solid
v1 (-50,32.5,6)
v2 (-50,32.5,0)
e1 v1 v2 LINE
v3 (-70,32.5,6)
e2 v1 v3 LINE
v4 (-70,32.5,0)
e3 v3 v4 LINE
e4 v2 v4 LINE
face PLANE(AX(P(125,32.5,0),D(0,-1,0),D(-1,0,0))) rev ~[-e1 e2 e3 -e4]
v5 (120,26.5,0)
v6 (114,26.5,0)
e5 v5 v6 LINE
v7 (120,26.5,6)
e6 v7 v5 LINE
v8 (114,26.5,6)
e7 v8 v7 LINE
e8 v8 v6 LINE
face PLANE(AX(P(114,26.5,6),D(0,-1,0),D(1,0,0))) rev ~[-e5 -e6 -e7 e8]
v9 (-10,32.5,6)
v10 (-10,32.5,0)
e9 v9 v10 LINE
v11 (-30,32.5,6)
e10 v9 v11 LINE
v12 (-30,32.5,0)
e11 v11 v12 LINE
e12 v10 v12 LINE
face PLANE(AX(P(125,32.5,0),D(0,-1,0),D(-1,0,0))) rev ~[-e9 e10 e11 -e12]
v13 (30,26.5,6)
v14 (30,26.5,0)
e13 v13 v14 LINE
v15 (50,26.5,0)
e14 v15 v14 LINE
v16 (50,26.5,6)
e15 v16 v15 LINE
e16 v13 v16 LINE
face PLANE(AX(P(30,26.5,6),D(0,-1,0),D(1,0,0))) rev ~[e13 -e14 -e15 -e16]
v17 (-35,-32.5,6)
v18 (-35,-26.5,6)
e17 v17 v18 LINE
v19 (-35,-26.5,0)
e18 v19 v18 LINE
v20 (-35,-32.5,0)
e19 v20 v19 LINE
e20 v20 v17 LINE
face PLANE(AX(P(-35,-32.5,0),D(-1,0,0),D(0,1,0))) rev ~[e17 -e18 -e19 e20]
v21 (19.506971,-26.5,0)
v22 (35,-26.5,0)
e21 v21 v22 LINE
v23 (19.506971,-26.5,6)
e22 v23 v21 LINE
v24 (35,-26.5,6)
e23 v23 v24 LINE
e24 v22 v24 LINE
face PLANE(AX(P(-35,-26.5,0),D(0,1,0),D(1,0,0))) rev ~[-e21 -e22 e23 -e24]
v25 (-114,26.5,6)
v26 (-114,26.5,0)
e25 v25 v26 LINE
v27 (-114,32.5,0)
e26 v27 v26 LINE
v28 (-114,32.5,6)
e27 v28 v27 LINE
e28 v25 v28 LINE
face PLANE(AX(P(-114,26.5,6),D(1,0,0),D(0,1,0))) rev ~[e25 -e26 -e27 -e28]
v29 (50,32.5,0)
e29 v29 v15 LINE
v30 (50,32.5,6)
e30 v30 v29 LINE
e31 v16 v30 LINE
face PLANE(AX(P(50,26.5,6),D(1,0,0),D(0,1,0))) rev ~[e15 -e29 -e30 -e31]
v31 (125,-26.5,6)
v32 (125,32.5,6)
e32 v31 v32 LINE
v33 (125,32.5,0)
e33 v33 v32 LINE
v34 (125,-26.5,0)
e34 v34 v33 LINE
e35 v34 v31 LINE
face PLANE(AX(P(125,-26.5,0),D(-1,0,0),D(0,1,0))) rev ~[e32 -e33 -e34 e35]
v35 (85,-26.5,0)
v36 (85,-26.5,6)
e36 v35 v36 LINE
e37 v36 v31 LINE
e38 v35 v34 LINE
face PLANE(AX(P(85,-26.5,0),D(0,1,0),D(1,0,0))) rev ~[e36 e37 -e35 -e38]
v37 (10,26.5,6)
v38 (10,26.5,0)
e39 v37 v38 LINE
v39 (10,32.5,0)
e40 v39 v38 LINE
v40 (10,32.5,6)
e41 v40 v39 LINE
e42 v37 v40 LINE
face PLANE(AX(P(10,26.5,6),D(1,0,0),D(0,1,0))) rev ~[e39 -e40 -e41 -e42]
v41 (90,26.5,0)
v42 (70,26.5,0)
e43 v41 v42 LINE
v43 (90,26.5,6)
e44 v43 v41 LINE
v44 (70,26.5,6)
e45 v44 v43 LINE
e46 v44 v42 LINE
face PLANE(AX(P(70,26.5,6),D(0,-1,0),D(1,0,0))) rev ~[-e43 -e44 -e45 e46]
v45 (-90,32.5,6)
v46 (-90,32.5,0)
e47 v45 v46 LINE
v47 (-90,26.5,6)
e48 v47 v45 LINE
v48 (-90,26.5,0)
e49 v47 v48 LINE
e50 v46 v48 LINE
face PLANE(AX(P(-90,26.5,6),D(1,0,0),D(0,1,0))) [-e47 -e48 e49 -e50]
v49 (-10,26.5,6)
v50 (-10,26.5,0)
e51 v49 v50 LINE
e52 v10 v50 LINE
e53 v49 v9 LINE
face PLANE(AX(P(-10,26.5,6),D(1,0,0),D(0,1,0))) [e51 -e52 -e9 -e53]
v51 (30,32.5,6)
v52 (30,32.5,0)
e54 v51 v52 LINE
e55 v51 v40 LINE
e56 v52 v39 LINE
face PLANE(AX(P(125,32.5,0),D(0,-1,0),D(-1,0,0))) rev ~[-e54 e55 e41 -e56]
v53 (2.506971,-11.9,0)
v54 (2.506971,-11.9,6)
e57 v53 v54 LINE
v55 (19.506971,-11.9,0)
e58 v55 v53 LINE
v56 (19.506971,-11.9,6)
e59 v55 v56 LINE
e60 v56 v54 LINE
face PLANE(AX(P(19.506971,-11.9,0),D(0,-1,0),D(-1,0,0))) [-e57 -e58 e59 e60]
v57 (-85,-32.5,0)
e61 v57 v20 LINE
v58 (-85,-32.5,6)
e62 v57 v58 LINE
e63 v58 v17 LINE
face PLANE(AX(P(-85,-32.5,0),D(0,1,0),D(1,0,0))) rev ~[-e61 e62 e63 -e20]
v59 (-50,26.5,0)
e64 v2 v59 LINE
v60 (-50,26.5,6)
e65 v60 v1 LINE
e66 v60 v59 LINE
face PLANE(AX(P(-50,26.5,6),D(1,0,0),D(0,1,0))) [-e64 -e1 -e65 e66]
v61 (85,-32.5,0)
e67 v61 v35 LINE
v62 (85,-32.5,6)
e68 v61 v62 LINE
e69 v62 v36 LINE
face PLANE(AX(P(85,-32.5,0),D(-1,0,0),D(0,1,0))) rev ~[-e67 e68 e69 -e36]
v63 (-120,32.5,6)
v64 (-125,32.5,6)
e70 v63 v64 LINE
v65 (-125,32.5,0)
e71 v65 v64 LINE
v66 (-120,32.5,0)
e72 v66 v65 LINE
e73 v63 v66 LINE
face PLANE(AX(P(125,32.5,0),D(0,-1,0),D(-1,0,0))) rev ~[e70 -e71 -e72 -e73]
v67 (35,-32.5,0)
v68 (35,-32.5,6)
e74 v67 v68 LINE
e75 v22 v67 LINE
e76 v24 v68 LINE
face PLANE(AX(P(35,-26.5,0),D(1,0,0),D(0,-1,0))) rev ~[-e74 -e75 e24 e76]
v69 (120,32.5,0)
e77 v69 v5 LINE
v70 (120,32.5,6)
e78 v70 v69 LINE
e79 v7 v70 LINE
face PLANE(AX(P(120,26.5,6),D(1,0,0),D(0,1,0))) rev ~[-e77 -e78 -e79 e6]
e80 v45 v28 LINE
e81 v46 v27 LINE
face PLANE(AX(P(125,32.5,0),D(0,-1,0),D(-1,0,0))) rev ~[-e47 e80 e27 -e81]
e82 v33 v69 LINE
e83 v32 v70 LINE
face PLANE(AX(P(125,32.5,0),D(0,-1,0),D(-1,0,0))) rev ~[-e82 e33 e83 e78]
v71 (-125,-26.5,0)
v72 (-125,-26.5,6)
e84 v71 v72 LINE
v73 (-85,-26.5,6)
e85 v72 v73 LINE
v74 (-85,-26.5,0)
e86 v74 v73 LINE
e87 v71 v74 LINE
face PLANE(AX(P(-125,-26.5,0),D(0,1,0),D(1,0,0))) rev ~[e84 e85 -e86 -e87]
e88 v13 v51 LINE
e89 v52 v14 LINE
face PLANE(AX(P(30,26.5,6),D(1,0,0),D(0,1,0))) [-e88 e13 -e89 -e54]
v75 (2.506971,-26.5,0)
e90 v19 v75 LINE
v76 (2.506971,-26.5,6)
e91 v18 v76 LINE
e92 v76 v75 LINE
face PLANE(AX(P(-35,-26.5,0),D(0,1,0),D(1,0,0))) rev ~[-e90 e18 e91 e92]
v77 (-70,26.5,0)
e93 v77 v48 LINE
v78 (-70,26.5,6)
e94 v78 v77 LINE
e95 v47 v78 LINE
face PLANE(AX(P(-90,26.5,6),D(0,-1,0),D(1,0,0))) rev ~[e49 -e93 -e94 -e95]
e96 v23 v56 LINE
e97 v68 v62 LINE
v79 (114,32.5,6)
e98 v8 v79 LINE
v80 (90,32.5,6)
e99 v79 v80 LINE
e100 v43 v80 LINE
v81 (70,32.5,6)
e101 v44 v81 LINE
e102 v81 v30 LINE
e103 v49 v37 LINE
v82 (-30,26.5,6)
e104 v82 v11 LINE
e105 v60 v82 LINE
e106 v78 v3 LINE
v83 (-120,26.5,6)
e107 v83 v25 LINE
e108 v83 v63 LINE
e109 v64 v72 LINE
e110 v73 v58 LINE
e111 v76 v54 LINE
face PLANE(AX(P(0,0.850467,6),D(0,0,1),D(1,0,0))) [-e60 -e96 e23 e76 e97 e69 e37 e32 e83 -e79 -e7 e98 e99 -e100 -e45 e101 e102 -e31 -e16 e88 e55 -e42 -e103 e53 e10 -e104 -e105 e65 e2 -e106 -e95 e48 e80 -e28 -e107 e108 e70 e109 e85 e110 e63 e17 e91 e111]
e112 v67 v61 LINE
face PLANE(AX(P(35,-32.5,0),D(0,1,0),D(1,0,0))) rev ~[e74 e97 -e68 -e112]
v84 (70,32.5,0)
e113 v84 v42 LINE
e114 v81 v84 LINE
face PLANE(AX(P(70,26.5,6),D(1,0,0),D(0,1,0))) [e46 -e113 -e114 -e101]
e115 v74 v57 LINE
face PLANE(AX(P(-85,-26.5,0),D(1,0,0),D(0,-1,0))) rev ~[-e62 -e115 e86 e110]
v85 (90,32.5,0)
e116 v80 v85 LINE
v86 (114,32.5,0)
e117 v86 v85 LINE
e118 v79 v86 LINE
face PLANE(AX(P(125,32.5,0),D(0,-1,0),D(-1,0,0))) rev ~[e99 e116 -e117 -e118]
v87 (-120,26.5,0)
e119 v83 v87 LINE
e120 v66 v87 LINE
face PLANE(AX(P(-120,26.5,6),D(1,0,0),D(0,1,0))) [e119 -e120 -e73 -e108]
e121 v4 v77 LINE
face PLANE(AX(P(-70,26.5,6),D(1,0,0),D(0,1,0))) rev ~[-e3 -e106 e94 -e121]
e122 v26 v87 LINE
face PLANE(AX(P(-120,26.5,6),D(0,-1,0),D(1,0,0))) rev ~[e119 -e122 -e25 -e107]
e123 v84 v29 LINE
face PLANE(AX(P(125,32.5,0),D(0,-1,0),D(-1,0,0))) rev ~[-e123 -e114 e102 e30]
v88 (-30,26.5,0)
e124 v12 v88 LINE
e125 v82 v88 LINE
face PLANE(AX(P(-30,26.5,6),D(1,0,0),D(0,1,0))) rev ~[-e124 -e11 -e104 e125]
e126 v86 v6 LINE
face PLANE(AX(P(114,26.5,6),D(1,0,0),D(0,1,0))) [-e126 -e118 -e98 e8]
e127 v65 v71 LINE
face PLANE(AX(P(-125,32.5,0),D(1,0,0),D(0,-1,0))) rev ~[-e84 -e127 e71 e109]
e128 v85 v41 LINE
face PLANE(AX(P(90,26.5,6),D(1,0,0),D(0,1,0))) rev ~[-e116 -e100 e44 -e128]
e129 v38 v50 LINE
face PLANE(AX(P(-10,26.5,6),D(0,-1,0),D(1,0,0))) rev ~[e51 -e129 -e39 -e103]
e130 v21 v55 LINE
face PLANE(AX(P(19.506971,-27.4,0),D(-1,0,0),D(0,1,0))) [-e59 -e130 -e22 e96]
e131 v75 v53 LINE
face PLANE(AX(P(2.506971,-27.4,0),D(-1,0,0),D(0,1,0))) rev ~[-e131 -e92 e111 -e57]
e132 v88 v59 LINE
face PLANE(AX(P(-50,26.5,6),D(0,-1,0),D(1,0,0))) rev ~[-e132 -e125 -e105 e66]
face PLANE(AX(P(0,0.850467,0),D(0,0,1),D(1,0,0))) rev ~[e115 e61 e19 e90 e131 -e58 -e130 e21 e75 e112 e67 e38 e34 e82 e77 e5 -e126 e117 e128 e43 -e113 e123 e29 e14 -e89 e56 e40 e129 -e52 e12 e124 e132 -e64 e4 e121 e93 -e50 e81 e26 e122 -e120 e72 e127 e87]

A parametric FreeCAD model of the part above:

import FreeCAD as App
import Part
import Sketcher
Q = App.Units.Quantity

doc = App.newDocument("Part")
body = doc.addObject("PartDesign::Body", "Body")

sketch1 = body.newObject("Sketcher::SketchObject", "Sketch")
sketch1.AttachmentSupport = (doc.getObject("XY_Plane"), [""])
sketch1.MapMode = "FlatFace"
sketch1.addGeometry([
    Part.LineSegment(App.Vector(-85, -26, 0), App.Vector(-85, -32, 0)),
    Part.LineSegment(App.Vector(-85, -32, 0), App.Vector(-35, -32, 0)),
    Part.LineSegment(App.Vector(-35, -32, 0), App.Vector(-35, -26, 0)),
    Part.LineSegment(App.Vector(-35, -26, 0), App.Vector(35, -26, 0)),
    Part.LineSegment(App.Vector(35, -26, 0), App.Vector(35, -32, 0)),
    Part.LineSegment(App.Vector(35, -32, 0), App.Vector(85, -32, 0)),
    Part.LineSegment(App.Vector(85, -32, 0), App.Vector(85, -26, 0)),
    Part.LineSegment(App.Vector(85, -26, 0), App.Vector(125, -26, 0)),
    Part.LineSegment(App.Vector(125, -26, 0), App.Vector(125, 32, 0)),
    Part.LineSegment(App.Vector(125, 32, 0), App.Vector(-125, 32, 0)),
    Part.LineSegment(App.Vector(-125, 32, 0), App.Vector(-125, -26, 0)),
    Part.LineSegment(App.Vector(-125, -26, 0), App.Vector(-85, -26, 0)),
], False)
sketch1.addConstraint([
    Sketcher.Constraint("Coincident", 0, 2, 1, 1),
    Sketcher.Constraint("Coincident", 1, 2, 2, 1),
    Sketcher.Constraint("Coincident", 2, 2, 3, 1),
    Sketcher.Constraint("Coincident", 3, 2, 4, 1),
    Sketcher.Constraint("Coincident", 4, 2, 5, 1),
    Sketcher.Constraint("Coincident", 5, 2, 6, 1),
    Sketcher.Constraint("Coincident", 6, 2, 7, 1),
    Sketcher.Constraint("Coincident", 7, 2, 8, 1),
    Sketcher.Constraint("Coincident", 8, 2, 9, 1),
    Sketcher.Constraint("Coincident", 9, 2, 10, 1),
    Sketcher.Constraint("Coincident", 10, 2, 11, 1),
    Sketcher.Constraint("Coincident", 11, 2, 0, 1),
    Sketcher.Constraint("Vertical", 0),
    Sketcher.Constraint("Horizontal", 1),
    Sketcher.Constraint("Vertical", 2),
    Sketcher.Constraint("Horizontal", 3),
    Sketcher.Constraint("Vertical", 4),
    Sketcher.Constraint("Horizontal", 5),
    Sketcher.Constraint("Vertical", 6),
    Sketcher.Constraint("Horizontal", 7),
    Sketcher.Constraint("Vertical", 8),
    Sketcher.Constraint("Horizontal", 9),
    Sketcher.Constraint("Vertical", 10),
    Sketcher.Constraint("Horizontal", 11),
    Sketcher.Constraint("Symmetric", 1, 2, 4, 2, -2),
    Sketcher.Constraint("Symmetric", 7, 2, 10, 2, -2),
    Sketcher.Constraint("Horizontal", 3, 2, 6, 2),
    Sketcher.Constraint("Equal", 1, 5),
    Sketcher.Constraint("DistanceX", 1, 1, 1, 2, Q("50 mm")),
    Sketcher.Constraint("DistanceX", 3, 1, 3, 2, Q("70 mm")),
    Sketcher.Constraint("DistanceX", 7, 1, 7, 2, Q("40 mm")),
    Sketcher.Constraint("DistanceY", 0, 2, 0, 1, Q("6 mm")),
    Sketcher.Constraint("DistanceY", 8, 1, 8, 2, Q("59 mm")),
    Sketcher.Constraint("DistanceY", 0, 2, -1, 1, Q("32.5 mm")),
])
pad1 = body.newObject("PartDesign::Pad", "Pad")
pad1.Profile = sketch1
pad1.Length = 6

sketch2 = body.newObject("Sketcher::SketchObject", "Sketch001")
sketch2.AttachmentSupport = (doc.getObject("XY_Plane"), [""])
sketch2.MapMode = "FlatFace"
sketch2.AttachmentOffset = App.Placement(App.Vector(0, 0, 6), App.Rotation())
sketch2.addGeometry([
    Part.LineSegment(App.Vector(-90, 32, 0), App.Vector(-90, 26, 0)),
    Part.LineSegment(App.Vector(-90, 26, 0), App.Vector(-70, 26, 0)),
    Part.LineSegment(App.Vector(-70, 26, 0), App.Vector(-70, 32, 0)),
    Part.LineSegment(App.Vector(-70, 32, 0), App.Vector(-90, 32, 0)),
], False)
sketch2.addConstraint([
    Sketcher.Constraint("Coincident", 0, 2, 1, 1),
    Sketcher.Constraint("Coincident", 1, 2, 2, 1),
    Sketcher.Constraint("Coincident", 2, 2, 3, 1),
    Sketcher.Constraint("Coincident", 3, 2, 0, 1),
    Sketcher.Constraint("Vertical", 0),
    Sketcher.Constraint("Horizontal", 1),
    Sketcher.Constraint("Vertical", 2),
    Sketcher.Constraint("Horizontal", 3),
    Sketcher.Constraint("DistanceX", 1, 1, 1, 2, Q("20 mm")),
    Sketcher.Constraint("DistanceY", 0, 2, 0, 1, Q("6 mm")),
    Sketcher.Constraint("DistanceX", 0, 2, -1, 1, Q("90 mm")),
    Sketcher.Constraint("DistanceY", -1, 1, 0, 2, Q("26.5 mm")),
])
pocket1 = body.newObject("PartDesign::Pocket", "Pocket")
pocket1.Profile = sketch2
pocket1.Type = "UpToFirst"

sketch3 = body.newObject("Sketcher::SketchObject", "Sketch002")
sketch3.AttachmentSupport = (doc.getObject("XY_Plane"), [""])
sketch3.MapMode = "FlatFace"
sketch3.AttachmentOffset = App.Placement(App.Vector(0, 0, 6), App.Rotation())
sketch3.addGeometry([
    Part.LineSegment(App.Vector(-50, 32, 0), App.Vector(-50, 26, 0)),
    Part.LineSegment(App.Vector(-50, 26, 0), App.Vector(-30, 26, 0)),
    Part.LineSegment(App.Vector(-30, 26, 0), App.Vector(-30, 32, 0)),
    Part.LineSegment(App.Vector(-30, 32, 0), App.Vector(-50, 32, 0)),
], False)
sketch3.addConstraint([
    Sketcher.Constraint("Coincident", 0, 2, 1, 1),
    Sketcher.Constraint("Coincident", 1, 2, 2, 1),
    Sketcher.Constraint("Coincident", 2, 2, 3, 1),
    Sketcher.Constraint("Coincident", 3, 2, 0, 1),
    Sketcher.Constraint("Vertical", 0),
    Sketcher.Constraint("Horizontal", 1),
    Sketcher.Constraint("Vertical", 2),
    Sketcher.Constraint("Horizontal", 3),
    Sketcher.Constraint("DistanceX", 1, 1, 1, 2, Q("20 mm")),
    Sketcher.Constraint("DistanceY", 0, 2, 0, 1, Q("6 mm")),
    Sketcher.Constraint("DistanceX", 0, 2, -1, 1, Q("50 mm")),
    Sketcher.Constraint("DistanceY", -1, 1, 0, 2, Q("26.5 mm")),
])
pocket2 = body.newObject("PartDesign::Pocket", "Pocket001")
pocket2.Profile = sketch3
pocket2.Type = "UpToFirst"

sketch4 = body.newObject("Sketcher::SketchObject", "Sketch003")
sketch4.AttachmentSupport = (doc.getObject("XY_Plane"), [""])
sketch4.MapMode = "FlatFace"
sketch4.AttachmentOffset = App.Placement(App.Vector(0, 0, 6), App.Rotation())
sketch4.addGeometry([
    Part.LineSegment(App.Vector(-10, 32, 0), App.Vector(-10, 26, 0)),
    Part.LineSegment(App.Vector(-10, 26, 0), App.Vector(10, 26, 0)),
    Part.LineSegment(App.Vector(10, 26, 0), App.Vector(10, 32, 0)),
    Part.LineSegment(App.Vector(10, 32, 0), App.Vector(-10, 32, 0)),
], False)
sketch4.addConstraint([
    Sketcher.Constraint("Coincident", 0, 2, 1, 1),
    Sketcher.Constraint("Coincident", 1, 2, 2, 1),
    Sketcher.Constraint("Coincident", 2, 2, 3, 1),
    Sketcher.Constraint("Coincident", 3, 2, 0, 1),
    Sketcher.Constraint("Vertical", 0),
    Sketcher.Constraint("Horizontal", 1),
    Sketcher.Constraint("Vertical", 2),
    Sketcher.Constraint("Horizontal", 3),
    Sketcher.Constraint("DistanceX", 1, 1, 1, 2, Q("20 mm")),
    Sketcher.Constraint("DistanceY", 0, 2, 0, 1, Q("6 mm")),
    Sketcher.Constraint("DistanceX", 0, 2, -1, 1, Q("10 mm")),
    Sketcher.Constraint("DistanceY", -1, 1, 0, 2, Q("26.5 mm")),
])
pocket3 = body.newObject("PartDesign::Pocket", "Pocket002")
pocket3.Profile = sketch4
pocket3.Type = "UpToFirst"

sketch5 = body.newObject("Sketcher::SketchObject", "Sketch004")
sketch5.AttachmentSupport = (doc.getObject("XY_Plane"), [""])
sketch5.MapMode = "FlatFace"
sketch5.AttachmentOffset = App.Placement(App.Vector(0, 0, 6), App.Rotation())
sketch5.addGeometry([
    Part.LineSegment(App.Vector(30, 32, 0), App.Vector(30, 26, 0)),
    Part.LineSegment(App.Vector(30, 26, 0), App.Vector(50, 26, 0)),
    Part.LineSegment(App.Vector(50, 26, 0), App.Vector(50, 32, 0)),
    Part.LineSegment(App.Vector(50, 32, 0), App.Vector(30, 32, 0)),
], False)
sketch5.addConstraint([
    Sketcher.Constraint("Coincident", 0, 2, 1, 1),
    Sketcher.Constraint("Coincident", 1, 2, 2, 1),
    Sketcher.Constraint("Coincident", 2, 2, 3, 1),
    Sketcher.Constraint("Coincident", 3, 2, 0, 1),
    Sketcher.Constraint("Vertical", 0),
    Sketcher.Constraint("Horizontal", 1),
    Sketcher.Constraint("Vertical", 2),
    Sketcher.Constraint("Horizontal", 3),
    Sketcher.Constraint("DistanceX", 1, 1, 1, 2, Q("20 mm")),
    Sketcher.Constraint("DistanceY", 0, 2, 0, 1, Q("6 mm")),
    Sketcher.Constraint("DistanceX", -1, 1, 0, 2, Q("30 mm")),
    Sketcher.Constraint("DistanceY", -1, 1, 0, 2, Q("26.5 mm")),
])
pocket4 = body.newObject("PartDesign::Pocket", "Pocket003")
pocket4.Profile = sketch5
pocket4.Type = "UpToFirst"

sketch6 = body.newObject("Sketcher::SketchObject", "Sketch005")
sketch6.AttachmentSupport = (doc.getObject("XY_Plane"), [""])
sketch6.MapMode = "FlatFace"
sketch6.AttachmentOffset = App.Placement(App.Vector(0, 0, 6), App.Rotation())
sketch6.addGeometry([
    Part.LineSegment(App.Vector(70, 32, 0), App.Vector(70, 26, 0)),
    Part.LineSegment(App.Vector(70, 26, 0), App.Vector(90, 26, 0)),
    Part.LineSegment(App.Vector(90, 26, 0), App.Vector(90, 32, 0)),
    Part.LineSegment(App.Vector(90, 32, 0), App.Vector(70, 32, 0)),
], False)
sketch6.addConstraint([
    Sketcher.Constraint("Coincident", 0, 2, 1, 1),
    Sketcher.Constraint("Coincident", 1, 2, 2, 1),
    Sketcher.Constraint("Coincident", 2, 2, 3, 1),
    Sketcher.Constraint("Coincident", 3, 2, 0, 1),
    Sketcher.Constraint("Vertical", 0),
    Sketcher.Constraint("Horizontal", 1),
    Sketcher.Constraint("Vertical", 2),
    Sketcher.Constraint("Horizontal", 3),
    Sketcher.Constraint("DistanceX", 1, 1, 1, 2, Q("20 mm")),
    Sketcher.Constraint("DistanceY", 0, 2, 0, 1, Q("6 mm")),
    Sketcher.Constraint("DistanceX", -1, 1, 0, 2, Q("70 mm")),
    Sketcher.Constraint("DistanceY", -1, 1, 0, 2, Q("26.5 mm")),
])
pocket5 = body.newObject("PartDesign::Pocket", "Pocket004")
pocket5.Profile = sketch6
pocket5.Type = "UpToFirst"

sketch7 = body.newObject("Sketcher::SketchObject", "Sketch006")
sketch7.AttachmentSupport = (doc.getObject("XY_Plane"), [""])
sketch7.MapMode = "FlatFace"
sketch7.AttachmentOffset = App.Placement(App.Vector(0, 0, 6), App.Rotation())
sketch7.addGeometry([
    Part.LineSegment(App.Vector(-120, 32, 0), App.Vector(-120, 26, 0)),
    Part.LineSegment(App.Vector(-120, 26, 0), App.Vector(-114, 26, 0)),
    Part.LineSegment(App.Vector(-114, 26, 0), App.Vector(-114, 32, 0)),
    Part.LineSegment(App.Vector(-114, 32, 0), App.Vector(-120, 32, 0)),
], False)
sketch7.addConstraint([
    Sketcher.Constraint("Coincident", 0, 2, 1, 1),
    Sketcher.Constraint("Coincident", 1, 2, 2, 1),
    Sketcher.Constraint("Coincident", 2, 2, 3, 1),
    Sketcher.Constraint("Coincident", 3, 2, 0, 1),
    Sketcher.Constraint("Vertical", 0),
    Sketcher.Constraint("Horizontal", 1),
    Sketcher.Constraint("Vertical", 2),
    Sketcher.Constraint("Horizontal", 3),
    Sketcher.Constraint("Equal", 3, 0),
    Sketcher.Constraint("DistanceX", 1, 1, 1, 2, Q("6 mm")),
    Sketcher.Constraint("DistanceX", 0, 2, -1, 1, Q("120 mm")),
    Sketcher.Constraint("DistanceY", -1, 1, 0, 2, Q("26.5 mm")),
])
pocket6 = body.newObject("PartDesign::Pocket", "Pocket005")
pocket6.Profile = sketch7
pocket6.Type = "UpToFirst"

sketch8 = body.newObject("Sketcher::SketchObject", "Sketch007")
sketch8.AttachmentSupport = (doc.getObject("XY_Plane"), [""])
sketch8.MapMode = "FlatFace"
sketch8.AttachmentOffset = App.Placement(App.Vector(0, 0, 6), App.Rotation())
sketch8.addGeometry([
    Part.LineSegment(App.Vector(114, 32, 0), App.Vector(114, 26, 0)),
    Part.LineSegment(App.Vector(114, 26, 0), App.Vector(120, 26, 0)),
    Part.LineSegment(App.Vector(120, 26, 0), App.Vector(120, 32, 0)),
    Part.LineSegment(App.Vector(120, 32, 0), App.Vector(114, 32, 0)),
], False)
sketch8.addConstraint([
    Sketcher.Constraint("Coincident", 0, 2, 1, 1),
    Sketcher.Constraint("Coincident", 1, 2, 2, 1),
    Sketcher.Constraint("Coincident", 2, 2, 3, 1),
    Sketcher.Constraint("Coincident", 3, 2, 0, 1),
    Sketcher.Constraint("Vertical", 0),
    Sketcher.Constraint("Horizontal", 1),
    Sketcher.Constraint("Vertical", 2),
    Sketcher.Constraint("Horizontal", 3),
    Sketcher.Constraint("Equal", 3, 0),
    Sketcher.Constraint("DistanceX", 1, 1, 1, 2, Q("6 mm")),
    Sketcher.Constraint("DistanceX", -1, 1, 0, 2, Q("114 mm")),
    Sketcher.Constraint("DistanceY", -1, 1, 0, 2, Q("26.5 mm")),
])
pocket7 = body.newObject("PartDesign::Pocket", "Pocket006")
pocket7.Profile = sketch8
pocket7.Type = "UpToFirst"

sketch9 = body.newObject("Sketcher::SketchObject", "Sketch008")
sketch9.AttachmentSupport = (doc.getObject("XY_Plane"), [""])
sketch9.MapMode = "FlatFace"
sketch9.addGeometry([
    Part.LineSegment(App.Vector(20, -12, 0), App.Vector(20, -27, 0)),
    Part.LineSegment(App.Vector(20, -27, 0), App.Vector(3, -27, 0)),
    Part.LineSegment(App.Vector(3, -27, 0), App.Vector(3, -12, 0)),
    Part.LineSegment(App.Vector(3, -12, 0), App.Vector(20, -12, 0)),
], False)
sketch9.addConstraint([
    Sketcher.Constraint("Coincident", 0, 2, 1, 1),
    Sketcher.Constraint("Coincident", 1, 2, 2, 1),
    Sketcher.Constraint("Coincident", 2, 2, 3, 1),
    Sketcher.Constraint("Coincident", 3, 2, 0, 1),
    Sketcher.Constraint("Vertical", 0),
    Sketcher.Constraint("Horizontal", 1),
    Sketcher.Constraint("Vertical", 2),
    Sketcher.Constraint("Horizontal", 3),
    Sketcher.Constraint("DistanceX", 1, 2, 1, 1, Q("17 mm")),
    Sketcher.Constraint("DistanceY", 0, 2, 0, 1, Q("15.5 mm")),
    Sketcher.Constraint("DistanceY", 0, 2, -1, 1, Q("27.4 mm")),
    Sketcher.Constraint("DistanceX", -1, 1, 0, 2, Q("19.506971 mm")),
])
pocket8 = body.newObject("PartDesign::Pocket", "Pocket007")
pocket8.Profile = sketch9
pocket8.Type = "UpToFirst"
pocket8.Reversed = True

doc.recompute()
